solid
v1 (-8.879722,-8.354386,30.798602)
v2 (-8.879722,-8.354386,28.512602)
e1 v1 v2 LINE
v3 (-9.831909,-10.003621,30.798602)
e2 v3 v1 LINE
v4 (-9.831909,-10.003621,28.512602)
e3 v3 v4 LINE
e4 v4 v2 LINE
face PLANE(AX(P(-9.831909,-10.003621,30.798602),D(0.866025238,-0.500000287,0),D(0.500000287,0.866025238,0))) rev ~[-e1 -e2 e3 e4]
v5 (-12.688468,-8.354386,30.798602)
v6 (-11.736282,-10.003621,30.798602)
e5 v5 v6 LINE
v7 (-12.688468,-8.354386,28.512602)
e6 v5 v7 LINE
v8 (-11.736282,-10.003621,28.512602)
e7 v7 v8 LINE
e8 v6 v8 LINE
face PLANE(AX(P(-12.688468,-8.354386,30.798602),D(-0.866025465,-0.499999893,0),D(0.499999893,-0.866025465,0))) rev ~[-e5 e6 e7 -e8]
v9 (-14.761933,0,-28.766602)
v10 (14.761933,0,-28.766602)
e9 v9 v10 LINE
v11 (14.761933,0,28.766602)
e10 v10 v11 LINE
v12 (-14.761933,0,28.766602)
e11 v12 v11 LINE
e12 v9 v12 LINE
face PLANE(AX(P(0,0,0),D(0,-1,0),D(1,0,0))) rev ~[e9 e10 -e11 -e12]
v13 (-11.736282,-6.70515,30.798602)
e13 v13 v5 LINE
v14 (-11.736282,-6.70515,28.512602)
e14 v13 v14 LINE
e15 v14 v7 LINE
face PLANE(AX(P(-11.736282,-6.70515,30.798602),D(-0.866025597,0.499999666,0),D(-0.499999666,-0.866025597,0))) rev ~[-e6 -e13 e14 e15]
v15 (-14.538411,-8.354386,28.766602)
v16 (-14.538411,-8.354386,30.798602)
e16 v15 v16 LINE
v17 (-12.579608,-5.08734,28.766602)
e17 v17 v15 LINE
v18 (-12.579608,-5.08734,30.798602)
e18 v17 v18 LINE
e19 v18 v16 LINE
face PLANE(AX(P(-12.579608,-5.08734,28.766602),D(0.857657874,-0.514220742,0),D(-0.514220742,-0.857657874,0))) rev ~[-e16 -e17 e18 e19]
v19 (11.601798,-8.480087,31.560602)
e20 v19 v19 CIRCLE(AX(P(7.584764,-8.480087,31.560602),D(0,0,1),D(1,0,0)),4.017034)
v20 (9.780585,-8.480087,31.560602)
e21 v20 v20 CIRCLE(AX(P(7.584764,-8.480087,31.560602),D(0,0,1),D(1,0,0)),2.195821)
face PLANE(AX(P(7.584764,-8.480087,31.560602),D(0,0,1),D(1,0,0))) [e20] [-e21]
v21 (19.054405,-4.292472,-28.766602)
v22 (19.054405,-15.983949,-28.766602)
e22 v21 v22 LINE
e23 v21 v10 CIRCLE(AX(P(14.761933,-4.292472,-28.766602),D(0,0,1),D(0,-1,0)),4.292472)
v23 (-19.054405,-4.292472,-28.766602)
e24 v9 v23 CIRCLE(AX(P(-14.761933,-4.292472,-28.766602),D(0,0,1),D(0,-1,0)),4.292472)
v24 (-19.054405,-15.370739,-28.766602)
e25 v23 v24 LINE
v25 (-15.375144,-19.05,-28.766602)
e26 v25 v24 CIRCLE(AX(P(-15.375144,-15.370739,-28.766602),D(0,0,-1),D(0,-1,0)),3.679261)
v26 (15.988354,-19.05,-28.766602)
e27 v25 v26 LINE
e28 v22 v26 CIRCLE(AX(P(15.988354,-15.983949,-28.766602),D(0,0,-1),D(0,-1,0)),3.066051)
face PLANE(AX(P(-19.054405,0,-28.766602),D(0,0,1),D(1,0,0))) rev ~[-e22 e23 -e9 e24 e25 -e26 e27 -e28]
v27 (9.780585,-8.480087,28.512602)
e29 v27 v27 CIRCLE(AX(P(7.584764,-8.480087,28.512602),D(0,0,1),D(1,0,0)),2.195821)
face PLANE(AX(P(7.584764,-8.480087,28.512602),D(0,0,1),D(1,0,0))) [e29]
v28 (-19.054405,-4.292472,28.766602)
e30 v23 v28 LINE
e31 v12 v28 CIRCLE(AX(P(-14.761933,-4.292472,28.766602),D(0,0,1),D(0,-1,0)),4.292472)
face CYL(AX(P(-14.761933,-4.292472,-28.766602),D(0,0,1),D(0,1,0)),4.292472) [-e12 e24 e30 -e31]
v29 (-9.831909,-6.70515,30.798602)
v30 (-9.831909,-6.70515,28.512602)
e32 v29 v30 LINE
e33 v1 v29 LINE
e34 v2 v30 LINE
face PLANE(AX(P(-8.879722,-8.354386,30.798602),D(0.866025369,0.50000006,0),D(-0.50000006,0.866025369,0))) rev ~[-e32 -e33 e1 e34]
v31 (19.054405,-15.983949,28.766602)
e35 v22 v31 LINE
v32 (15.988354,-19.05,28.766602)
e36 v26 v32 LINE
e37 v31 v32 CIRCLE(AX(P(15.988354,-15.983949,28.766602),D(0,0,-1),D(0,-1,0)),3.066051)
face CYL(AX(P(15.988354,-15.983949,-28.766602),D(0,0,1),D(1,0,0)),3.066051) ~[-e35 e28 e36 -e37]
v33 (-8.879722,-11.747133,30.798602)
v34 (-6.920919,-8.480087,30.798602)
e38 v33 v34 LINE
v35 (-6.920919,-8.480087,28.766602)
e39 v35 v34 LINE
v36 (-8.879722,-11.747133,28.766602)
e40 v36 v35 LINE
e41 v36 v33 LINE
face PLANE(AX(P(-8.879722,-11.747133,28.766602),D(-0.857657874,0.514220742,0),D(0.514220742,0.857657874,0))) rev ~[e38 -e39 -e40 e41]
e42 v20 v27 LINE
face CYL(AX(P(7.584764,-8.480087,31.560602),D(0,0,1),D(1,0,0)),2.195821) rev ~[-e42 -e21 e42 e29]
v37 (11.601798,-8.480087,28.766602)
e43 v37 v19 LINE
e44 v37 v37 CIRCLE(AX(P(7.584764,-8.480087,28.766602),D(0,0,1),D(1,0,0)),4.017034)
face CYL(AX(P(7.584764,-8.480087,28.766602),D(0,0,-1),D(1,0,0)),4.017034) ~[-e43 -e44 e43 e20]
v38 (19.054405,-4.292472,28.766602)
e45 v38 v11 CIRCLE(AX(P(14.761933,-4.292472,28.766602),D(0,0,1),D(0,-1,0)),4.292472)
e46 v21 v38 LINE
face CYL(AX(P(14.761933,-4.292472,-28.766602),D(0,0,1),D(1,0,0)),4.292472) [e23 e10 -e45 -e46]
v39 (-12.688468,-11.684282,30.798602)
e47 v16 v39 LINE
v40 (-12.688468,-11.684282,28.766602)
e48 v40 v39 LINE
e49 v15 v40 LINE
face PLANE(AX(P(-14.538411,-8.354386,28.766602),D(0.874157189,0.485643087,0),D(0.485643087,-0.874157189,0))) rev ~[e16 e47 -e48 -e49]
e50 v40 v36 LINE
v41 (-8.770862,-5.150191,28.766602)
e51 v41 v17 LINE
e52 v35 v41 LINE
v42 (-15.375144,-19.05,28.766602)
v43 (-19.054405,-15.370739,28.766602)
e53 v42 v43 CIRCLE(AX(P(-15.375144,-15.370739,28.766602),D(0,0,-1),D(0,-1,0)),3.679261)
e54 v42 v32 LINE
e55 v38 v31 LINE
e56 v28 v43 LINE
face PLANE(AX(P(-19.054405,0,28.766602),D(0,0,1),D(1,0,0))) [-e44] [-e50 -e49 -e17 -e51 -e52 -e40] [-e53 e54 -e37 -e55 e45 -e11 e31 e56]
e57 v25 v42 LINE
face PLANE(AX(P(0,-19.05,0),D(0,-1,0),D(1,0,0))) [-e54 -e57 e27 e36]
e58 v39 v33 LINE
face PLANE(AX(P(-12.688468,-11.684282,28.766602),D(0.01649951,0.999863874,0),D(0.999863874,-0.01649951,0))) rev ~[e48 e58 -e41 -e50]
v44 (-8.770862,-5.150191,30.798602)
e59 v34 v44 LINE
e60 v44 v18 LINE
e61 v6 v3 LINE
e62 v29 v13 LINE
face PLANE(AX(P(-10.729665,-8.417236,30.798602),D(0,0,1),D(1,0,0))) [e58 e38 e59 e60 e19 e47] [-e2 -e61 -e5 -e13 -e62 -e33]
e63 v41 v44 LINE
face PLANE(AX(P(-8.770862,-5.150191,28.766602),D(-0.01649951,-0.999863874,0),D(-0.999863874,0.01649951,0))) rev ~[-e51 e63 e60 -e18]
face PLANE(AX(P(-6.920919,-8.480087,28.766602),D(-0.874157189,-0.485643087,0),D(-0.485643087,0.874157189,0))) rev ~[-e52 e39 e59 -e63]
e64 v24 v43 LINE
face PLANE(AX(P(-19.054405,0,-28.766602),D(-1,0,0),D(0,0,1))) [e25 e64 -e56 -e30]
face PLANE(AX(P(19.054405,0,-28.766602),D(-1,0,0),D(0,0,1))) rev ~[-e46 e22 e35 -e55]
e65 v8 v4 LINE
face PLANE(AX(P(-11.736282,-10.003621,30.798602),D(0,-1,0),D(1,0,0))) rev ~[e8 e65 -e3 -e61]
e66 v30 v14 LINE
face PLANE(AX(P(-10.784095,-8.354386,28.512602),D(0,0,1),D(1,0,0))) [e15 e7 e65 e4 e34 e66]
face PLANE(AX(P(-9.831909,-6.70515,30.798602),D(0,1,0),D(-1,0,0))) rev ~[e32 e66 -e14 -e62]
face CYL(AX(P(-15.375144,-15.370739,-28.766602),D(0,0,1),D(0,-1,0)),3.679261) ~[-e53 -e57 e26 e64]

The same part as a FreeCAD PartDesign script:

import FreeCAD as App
import Part
import Sketcher

V = App.Vector
Q = App.Units.Quantity


def edges_at(feature, points):
    """Names of the edges that pass closest to the given points."""
    edges = feature.Shape.Edges
    near = lambda p: min(range(len(edges)), key=lambda i: edges[i].distToShape(Part.Vertex(*p))[0])
    return sorted({f"Edge{near(p) + 1}" for p in points})


def add_polygon(sketch, points):
    """Adds a closed chain of lines whose ends are joined by coincident constraints."""
    first, n = sketch.GeometryCount, len(points)
    for a, b in zip(points, points[1:] + points[:1]):
        sketch.addGeometry(Part.LineSegment(App.Vector(*a, 0), App.Vector(*b, 0)), False)
    for i in range(n):
        sketch.addConstraint(Sketcher.Constraint("Coincident", first + i, 2, first + (i + 1) % n, 1))

doc = App.newDocument("Part")
body = doc.addObject("PartDesign::Body", "Body")

# Sketch on XZ plane
sketch1 = body.newObject("Sketcher::SketchObject", "Sketch")
sketch1.AttachmentSupport = (doc.getObject("XZ_Plane"), [""])
sketch1.MapMode = "FlatFace"
add_polygon(sketch1, [(-19.054405, 28.766602), (-19.054405, -28.766602), (19.054405, -28.766602), (19.054405, 28.766602)])  # lines 0-3
sketch1.addConstraint([
    Sketcher.Constraint("Vertical", 0),
    Sketcher.Constraint("Horizontal", 1),
    Sketcher.Constraint("Vertical", 2),
    Sketcher.Constraint("Horizontal", 3),
    Sketcher.Constraint("Symmetric", 0, 2, 2, 2, -1, 1),
    Sketcher.Constraint("DistanceX", 1, 1, 1, 2, Q("38.10881 mm")),
    Sketcher.Constraint("DistanceY", 0, 2, -1, 1, Q("28.766602 mm")),
])
pad1 = body.newObject("PartDesign::Pad", "Pad")
pad1.Profile = sketch1
pad1.Length = Q("0.75 in")
doc.recompute()

fillet = body.newObject("PartDesign::Fillet", "Fillet")
fillet.Base = (pad1, edges_at(pad1, [(19.054, -19.05, 0)]))
fillet.Radius = 3.066051
doc.recompute()

fillet2 = body.newObject("PartDesign::Fillet", "Fillet001")
fillet2.Base = (fillet, edges_at(fillet, [(-19.054, -19.05, 0)]))
fillet2.Radius = 3.679261
doc.recompute()

fillet3 = body.newObject("PartDesign::Fillet", "Fillet002")
fillet3.Base = (fillet2, edges_at(fillet2, [(19.054, 0, 0)]))
fillet3.Radius = 4.292472
doc.recompute()

fillet4 = body.newObject("PartDesign::Fillet", "Fillet003")
fillet4.Base = (fillet3, edges_at(fillet3, [(-19.054, 0, 0)]))
fillet4.Radius = 4.292472

# Sketch on XY plane
sketch2 = body.newObject("Sketcher::SketchObject", "Sketch001")
sketch2.AttachmentSupport = (doc.getObject("XY_Plane"), [""])
sketch2.MapMode = "FlatFace"
sketch2.AttachmentOffset = App.Placement(V(0, 0, 28.766602), App.Rotation())
add_polygon(sketch2, [(-12.688468, -11.684282), (-8.879722, -11.747133), (-6.920919, -8.480087), (-8.770862, -5.150191), (-12.579608, -5.08734), (-14.538411, -8.354386)])  # lines 0-5
sketch2.addConstraint([
    Sketcher.Constraint("DistanceY", 1, 2, 4, 2, Q("0.125701 mm")),
    Sketcher.Constraint("DistanceX", 0, 2, -1, 1, Q("8.879722 mm")),
    Sketcher.Constraint("DistanceX", 1, 2, -1, 1, Q("6.920919 mm")),
    Sketcher.Constraint("DistanceX", 2, 2, -1, 1, Q("8.770862 mm")),
    Sketcher.Constraint("DistanceY", 2, 2, -1, 1, Q("5.150191 mm")),
    Sketcher.Constraint("DistanceY", 3, 2, -1, 1, Q("5.08734 mm")),
    Sketcher.Constraint("DistanceX", 4, 2, -1, 1, Q("14.538411 mm")),
    Sketcher.Constraint("DistanceY", 0, 2, 2, 2, Q("6.596942 mm")),
    Sketcher.Constraint("DistanceX", 3, 2, 1, 2, Q("5.658689 mm")),
    Sketcher.Constraint("DistanceY", 0, 2, 5, 2, Q("0.062851 mm")),
    Sketcher.Constraint("DistanceX", 5, 2, 1, 2, Q("5.767549 mm")),
    Sketcher.Constraint("Distance", 1, Q("3.809265 mm")),
])
pad2 = body.newObject("PartDesign::Pad", "Pad001")
pad2.Profile = sketch2
pad2.Length = Q("0.08 in")

# Sketch on XY plane
sketch3 = body.newObject("Sketcher::SketchObject", "Sketch002")
sketch3.AttachmentSupport = (doc.getObject("XY_Plane"), [""])
sketch3.MapMode = "FlatFace"
sketch3.AttachmentOffset = App.Placement(V(0, 0, 28.766602), App.Rotation())
sketch3.addGeometry(Part.Circle(V(7.584764, -8.480087, 0), V(0, 0, 1), 4.017034), False)
sketch3.addConstraint([
    Sketcher.Constraint("Diameter", 0, Q("8.034068 mm")),
    Sketcher.Constraint("DistanceX", -1, 1, 0, 3, Q("7.584764 mm")),
    Sketcher.Constraint("DistanceY", 0, 3, -1, 1, Q("8.480087 mm")),
])
pad3 = body.newObject("PartDesign::Pad", "Pad002")
pad3.Profile = sketch3
pad3.Length = Q("0.11 in")

# Sketch on XY plane
sketch4 = body.newObject("Sketcher::SketchObject", "Sketch003")
sketch4.AttachmentSupport = (doc.getObject("XY_Plane"), [""])
sketch4.MapMode = "FlatFace"
sketch4.AttachmentOffset = App.Placement(V(0, 0, 30.798602), App.Rotation())
add_polygon(sketch4, [(-9.831909, -10.003621), (-8.879722, -8.354386), (-9.831909, -6.70515), (-11.736282, -6.70515), (-12.688468, -8.354386), (-11.736282, -10.003621)])  # lines 0-5
sketch4.addConstraint([
    Sketcher.Constraint("Horizontal", 2),
    Sketcher.Constraint("Horizontal", 5),
    Sketcher.Constraint("Parallel", 0, 3),
    Sketcher.Constraint("Parallel", 1, 4),
    Sketcher.Constraint("Horizontal", 0, 2, 3, 2),
    Sketcher.Constraint("Vertical", 2, 2, 4, 2),
    Sketcher.Constraint("Vertical", 1, 2, 5, 2),
    Sketcher.Constraint("Angle", 0, Q("59.999981 deg")),
    Sketcher.Constraint("DistanceX", 2, 2, 2, 1, Q("1.904373 mm")),
    Sketcher.Constraint("DistanceX", 0, 2, -1, 1, Q("8.879722 mm")),
    Sketcher.Constraint("DistanceX", 1, 2, -1, 1, Q("9.831909 mm")),
    Sketcher.Constraint("DistanceY", 1, 2, -1, 1, Q("6.70515 mm")),
])
pocket1 = body.newObject("PartDesign::Pocket", "Pocket")
pocket1.Profile = sketch4
pocket1.Length = Q("0.09 in")

# Sketch on XY plane
sketch5 = body.newObject("Sketcher::SketchObject", "Sketch004")
sketch5.AttachmentSupport = (doc.getObject("XY_Plane"), [""])
sketch5.MapMode = "FlatFace"
sketch5.AttachmentOffset = App.Placement(V(0, 0, 31.560602), App.Rotation())
sketch5.addGeometry(Part.Circle(V(7.584764, -8.480087, 0), V(0, 0, 1), 2.195821), False)
sketch5.addConstraint([
    Sketcher.Constraint("Diameter", 0, Q("4.391642 mm")),
    Sketcher.Constraint("DistanceX", -1, 1, 0, 3, Q("7.584764 mm")),
    Sketcher.Constraint("DistanceY", 0, 3, -1, 1, Q("8.480087 mm")),
])
pocket2 = body.newObject("PartDesign::Pocket", "Pocket001")
pocket2.Profile = sketch5
pocket2.Length = Q("0.12 in")

doc.recompute()
